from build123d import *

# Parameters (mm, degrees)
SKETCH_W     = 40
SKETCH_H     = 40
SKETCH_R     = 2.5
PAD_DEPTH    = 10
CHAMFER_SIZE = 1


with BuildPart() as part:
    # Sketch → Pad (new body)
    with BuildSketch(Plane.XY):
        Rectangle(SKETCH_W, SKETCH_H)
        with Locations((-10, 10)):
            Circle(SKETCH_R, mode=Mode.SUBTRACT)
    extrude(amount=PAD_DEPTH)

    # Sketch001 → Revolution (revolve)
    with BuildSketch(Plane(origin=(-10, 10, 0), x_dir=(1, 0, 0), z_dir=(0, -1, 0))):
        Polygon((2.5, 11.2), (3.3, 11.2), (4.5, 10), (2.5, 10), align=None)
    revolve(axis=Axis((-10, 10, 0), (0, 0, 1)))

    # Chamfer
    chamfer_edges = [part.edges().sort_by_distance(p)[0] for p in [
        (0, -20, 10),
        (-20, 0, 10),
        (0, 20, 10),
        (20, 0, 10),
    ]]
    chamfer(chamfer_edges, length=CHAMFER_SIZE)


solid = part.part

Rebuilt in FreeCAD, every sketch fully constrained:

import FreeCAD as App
import Part
import Sketcher
Q = App.Units.Quantity


def edges_at(feature, points):
    """Names of the edges that pass closest to the given points."""
    edges = feature.Shape.Edges
    near = lambda p: min(range(len(edges)), key=lambda i: edges[i].distToShape(Part.Vertex(*p))[0])
    return sorted({f"Edge{near(p) + 1}" for p in points})

doc = App.newDocument("Part")
body = doc.addObject("PartDesign::Body", "Body")

sketch1 = body.newObject("Sketcher::SketchObject", "Sketch")
sketch1.AttachmentSupport = (doc.getObject("XY_Plane"), [""])
sketch1.MapMode = "FlatFace"
sketch1.addGeometry([
    Part.LineSegment(App.Vector(-20, 20, 0), App.Vector(-20, -20, 0)),
    Part.LineSegment(App.Vector(-20, -20, 0), App.Vector(20, -20, 0)),
    Part.LineSegment(App.Vector(20, -20, 0), App.Vector(20, 20, 0)),
    Part.LineSegment(App.Vector(20, 20, 0), App.Vector(-20, 20, 0)),
    Part.Circle(App.Vector(-10, 10, 0), App.Vector(0, 0, 1), 2.5),
], False)
sketch1.addConstraint([
    Sketcher.Constraint("Coincident", 0, 2, 1, 1),
    Sketcher.Constraint("Coincident", 1, 2, 2, 1),
    Sketcher.Constraint("Coincident", 2, 2, 3, 1),
    Sketcher.Constraint("Coincident", 3, 2, 0, 1),
    Sketcher.Constraint("Vertical", 0),
    Sketcher.Constraint("Horizontal", 1),
    Sketcher.Constraint("Vertical", 2),
    Sketcher.Constraint("Horizontal", 3),
    Sketcher.Constraint("Symmetric", 0, 2, 2, 2, -1, 1),
    Sketcher.Constraint("Equal", 3, 0),
    Sketcher.Constraint("Diameter", 4, Q("5 mm")),
    Sketcher.Constraint("DistanceX", 1, 1, 1, 2, Q("40 mm")),
    Sketcher.Constraint("DistanceX", 4, 3, -1, 1, Q("10 mm")),
    Sketcher.Constraint("DistanceY", -1, 1, 4, 3, Q("10 mm")),
])
pad1 = body.newObject("PartDesign::Pad", "Pad")
pad1.Profile = sketch1
pad1.Length = 10

sketch2 = body.newObject("Sketcher::SketchObject", "Sketch001")
sketch2.AttachmentSupport = (doc.getObject("XZ_Plane"), [""])
sketch2.MapMode = "FlatFace"
sketch2.AttachmentOffset = App.Placement(App.Vector(0, 0, -10), App.Rotation())
sketch2.addGeometry([
    Part.LineSegment(App.Vector(-6.7, 11.2, 0), App.Vector(-7.5, 11.2, 0)),
    Part.LineSegment(App.Vector(-7.5, 11.2, 0), App.Vector(-7.5, 10, 0)),
    Part.LineSegment(App.Vector(-7.5, 10, 0), App.Vector(-5.5, 10, 0)),
    Part.LineSegment(App.Vector(-5.5, 10, 0), App.Vector(-6.7, 11.2, 0)),
], False)
sketch2.addGeometry(Part.LineSegment(App.Vector(-10, 10, 0), App.Vector(-10, 11.2, 0)), True)
sketch2.addConstraint([
    Sketcher.Constraint("Coincident", 0, 2, 1, 1),
    Sketcher.Constraint("Coincident", 1, 2, 2, 1),
    Sketcher.Constraint("Coincident", 2, 2, 3, 1),
    Sketcher.Constraint("Coincident", 3, 2, 0, 1),
    Sketcher.Constraint("Horizontal", 0),
    Sketcher.Constraint("Vertical", 1),
    Sketcher.Constraint("Horizontal", 2),
    Sketcher.Constraint("Vertical", 4),
    Sketcher.Constraint("Horizontal", 2, 2, 4, 1),
    Sketcher.Constraint("Horizontal", 3, 2, 4, 2),
    Sketcher.Constraint("DistanceX", 2, 1, 2, 2, Q("2 mm")),
    Sketcher.Constraint("Angle", 3, Q("135 deg")),
    Sketcher.Constraint("DistanceX", 0, 2, 0, 1, Q("0.8 mm")),
    Sketcher.Constraint("DistanceY", -1, 1, 1, 2, Q("10 mm")),
    Sketcher.Constraint("DistanceX", 4, 1, -1, 1, Q("10 mm")),
    Sketcher.Constraint("DistanceX", 0, 2, -1, 1, Q("7.5 mm")),
])
revolution = body.newObject("PartDesign::Revolution", "Revolution")
revolution.Profile = sketch2
revolution.ReferenceAxis = (sketch2, ["Axis0"])
revolution.Angle = 360
doc.recompute()

chamfer = body.newObject("PartDesign::Chamfer", "Chamfer")
chamfer.Base = (revolution, edges_at(revolution, [
    (0, -20, 10),
    (-20, 0, 10),
    (0, 20, 10),
    (20, 0, 10),
]))
chamfer.Size = 1

doc.recompute()
